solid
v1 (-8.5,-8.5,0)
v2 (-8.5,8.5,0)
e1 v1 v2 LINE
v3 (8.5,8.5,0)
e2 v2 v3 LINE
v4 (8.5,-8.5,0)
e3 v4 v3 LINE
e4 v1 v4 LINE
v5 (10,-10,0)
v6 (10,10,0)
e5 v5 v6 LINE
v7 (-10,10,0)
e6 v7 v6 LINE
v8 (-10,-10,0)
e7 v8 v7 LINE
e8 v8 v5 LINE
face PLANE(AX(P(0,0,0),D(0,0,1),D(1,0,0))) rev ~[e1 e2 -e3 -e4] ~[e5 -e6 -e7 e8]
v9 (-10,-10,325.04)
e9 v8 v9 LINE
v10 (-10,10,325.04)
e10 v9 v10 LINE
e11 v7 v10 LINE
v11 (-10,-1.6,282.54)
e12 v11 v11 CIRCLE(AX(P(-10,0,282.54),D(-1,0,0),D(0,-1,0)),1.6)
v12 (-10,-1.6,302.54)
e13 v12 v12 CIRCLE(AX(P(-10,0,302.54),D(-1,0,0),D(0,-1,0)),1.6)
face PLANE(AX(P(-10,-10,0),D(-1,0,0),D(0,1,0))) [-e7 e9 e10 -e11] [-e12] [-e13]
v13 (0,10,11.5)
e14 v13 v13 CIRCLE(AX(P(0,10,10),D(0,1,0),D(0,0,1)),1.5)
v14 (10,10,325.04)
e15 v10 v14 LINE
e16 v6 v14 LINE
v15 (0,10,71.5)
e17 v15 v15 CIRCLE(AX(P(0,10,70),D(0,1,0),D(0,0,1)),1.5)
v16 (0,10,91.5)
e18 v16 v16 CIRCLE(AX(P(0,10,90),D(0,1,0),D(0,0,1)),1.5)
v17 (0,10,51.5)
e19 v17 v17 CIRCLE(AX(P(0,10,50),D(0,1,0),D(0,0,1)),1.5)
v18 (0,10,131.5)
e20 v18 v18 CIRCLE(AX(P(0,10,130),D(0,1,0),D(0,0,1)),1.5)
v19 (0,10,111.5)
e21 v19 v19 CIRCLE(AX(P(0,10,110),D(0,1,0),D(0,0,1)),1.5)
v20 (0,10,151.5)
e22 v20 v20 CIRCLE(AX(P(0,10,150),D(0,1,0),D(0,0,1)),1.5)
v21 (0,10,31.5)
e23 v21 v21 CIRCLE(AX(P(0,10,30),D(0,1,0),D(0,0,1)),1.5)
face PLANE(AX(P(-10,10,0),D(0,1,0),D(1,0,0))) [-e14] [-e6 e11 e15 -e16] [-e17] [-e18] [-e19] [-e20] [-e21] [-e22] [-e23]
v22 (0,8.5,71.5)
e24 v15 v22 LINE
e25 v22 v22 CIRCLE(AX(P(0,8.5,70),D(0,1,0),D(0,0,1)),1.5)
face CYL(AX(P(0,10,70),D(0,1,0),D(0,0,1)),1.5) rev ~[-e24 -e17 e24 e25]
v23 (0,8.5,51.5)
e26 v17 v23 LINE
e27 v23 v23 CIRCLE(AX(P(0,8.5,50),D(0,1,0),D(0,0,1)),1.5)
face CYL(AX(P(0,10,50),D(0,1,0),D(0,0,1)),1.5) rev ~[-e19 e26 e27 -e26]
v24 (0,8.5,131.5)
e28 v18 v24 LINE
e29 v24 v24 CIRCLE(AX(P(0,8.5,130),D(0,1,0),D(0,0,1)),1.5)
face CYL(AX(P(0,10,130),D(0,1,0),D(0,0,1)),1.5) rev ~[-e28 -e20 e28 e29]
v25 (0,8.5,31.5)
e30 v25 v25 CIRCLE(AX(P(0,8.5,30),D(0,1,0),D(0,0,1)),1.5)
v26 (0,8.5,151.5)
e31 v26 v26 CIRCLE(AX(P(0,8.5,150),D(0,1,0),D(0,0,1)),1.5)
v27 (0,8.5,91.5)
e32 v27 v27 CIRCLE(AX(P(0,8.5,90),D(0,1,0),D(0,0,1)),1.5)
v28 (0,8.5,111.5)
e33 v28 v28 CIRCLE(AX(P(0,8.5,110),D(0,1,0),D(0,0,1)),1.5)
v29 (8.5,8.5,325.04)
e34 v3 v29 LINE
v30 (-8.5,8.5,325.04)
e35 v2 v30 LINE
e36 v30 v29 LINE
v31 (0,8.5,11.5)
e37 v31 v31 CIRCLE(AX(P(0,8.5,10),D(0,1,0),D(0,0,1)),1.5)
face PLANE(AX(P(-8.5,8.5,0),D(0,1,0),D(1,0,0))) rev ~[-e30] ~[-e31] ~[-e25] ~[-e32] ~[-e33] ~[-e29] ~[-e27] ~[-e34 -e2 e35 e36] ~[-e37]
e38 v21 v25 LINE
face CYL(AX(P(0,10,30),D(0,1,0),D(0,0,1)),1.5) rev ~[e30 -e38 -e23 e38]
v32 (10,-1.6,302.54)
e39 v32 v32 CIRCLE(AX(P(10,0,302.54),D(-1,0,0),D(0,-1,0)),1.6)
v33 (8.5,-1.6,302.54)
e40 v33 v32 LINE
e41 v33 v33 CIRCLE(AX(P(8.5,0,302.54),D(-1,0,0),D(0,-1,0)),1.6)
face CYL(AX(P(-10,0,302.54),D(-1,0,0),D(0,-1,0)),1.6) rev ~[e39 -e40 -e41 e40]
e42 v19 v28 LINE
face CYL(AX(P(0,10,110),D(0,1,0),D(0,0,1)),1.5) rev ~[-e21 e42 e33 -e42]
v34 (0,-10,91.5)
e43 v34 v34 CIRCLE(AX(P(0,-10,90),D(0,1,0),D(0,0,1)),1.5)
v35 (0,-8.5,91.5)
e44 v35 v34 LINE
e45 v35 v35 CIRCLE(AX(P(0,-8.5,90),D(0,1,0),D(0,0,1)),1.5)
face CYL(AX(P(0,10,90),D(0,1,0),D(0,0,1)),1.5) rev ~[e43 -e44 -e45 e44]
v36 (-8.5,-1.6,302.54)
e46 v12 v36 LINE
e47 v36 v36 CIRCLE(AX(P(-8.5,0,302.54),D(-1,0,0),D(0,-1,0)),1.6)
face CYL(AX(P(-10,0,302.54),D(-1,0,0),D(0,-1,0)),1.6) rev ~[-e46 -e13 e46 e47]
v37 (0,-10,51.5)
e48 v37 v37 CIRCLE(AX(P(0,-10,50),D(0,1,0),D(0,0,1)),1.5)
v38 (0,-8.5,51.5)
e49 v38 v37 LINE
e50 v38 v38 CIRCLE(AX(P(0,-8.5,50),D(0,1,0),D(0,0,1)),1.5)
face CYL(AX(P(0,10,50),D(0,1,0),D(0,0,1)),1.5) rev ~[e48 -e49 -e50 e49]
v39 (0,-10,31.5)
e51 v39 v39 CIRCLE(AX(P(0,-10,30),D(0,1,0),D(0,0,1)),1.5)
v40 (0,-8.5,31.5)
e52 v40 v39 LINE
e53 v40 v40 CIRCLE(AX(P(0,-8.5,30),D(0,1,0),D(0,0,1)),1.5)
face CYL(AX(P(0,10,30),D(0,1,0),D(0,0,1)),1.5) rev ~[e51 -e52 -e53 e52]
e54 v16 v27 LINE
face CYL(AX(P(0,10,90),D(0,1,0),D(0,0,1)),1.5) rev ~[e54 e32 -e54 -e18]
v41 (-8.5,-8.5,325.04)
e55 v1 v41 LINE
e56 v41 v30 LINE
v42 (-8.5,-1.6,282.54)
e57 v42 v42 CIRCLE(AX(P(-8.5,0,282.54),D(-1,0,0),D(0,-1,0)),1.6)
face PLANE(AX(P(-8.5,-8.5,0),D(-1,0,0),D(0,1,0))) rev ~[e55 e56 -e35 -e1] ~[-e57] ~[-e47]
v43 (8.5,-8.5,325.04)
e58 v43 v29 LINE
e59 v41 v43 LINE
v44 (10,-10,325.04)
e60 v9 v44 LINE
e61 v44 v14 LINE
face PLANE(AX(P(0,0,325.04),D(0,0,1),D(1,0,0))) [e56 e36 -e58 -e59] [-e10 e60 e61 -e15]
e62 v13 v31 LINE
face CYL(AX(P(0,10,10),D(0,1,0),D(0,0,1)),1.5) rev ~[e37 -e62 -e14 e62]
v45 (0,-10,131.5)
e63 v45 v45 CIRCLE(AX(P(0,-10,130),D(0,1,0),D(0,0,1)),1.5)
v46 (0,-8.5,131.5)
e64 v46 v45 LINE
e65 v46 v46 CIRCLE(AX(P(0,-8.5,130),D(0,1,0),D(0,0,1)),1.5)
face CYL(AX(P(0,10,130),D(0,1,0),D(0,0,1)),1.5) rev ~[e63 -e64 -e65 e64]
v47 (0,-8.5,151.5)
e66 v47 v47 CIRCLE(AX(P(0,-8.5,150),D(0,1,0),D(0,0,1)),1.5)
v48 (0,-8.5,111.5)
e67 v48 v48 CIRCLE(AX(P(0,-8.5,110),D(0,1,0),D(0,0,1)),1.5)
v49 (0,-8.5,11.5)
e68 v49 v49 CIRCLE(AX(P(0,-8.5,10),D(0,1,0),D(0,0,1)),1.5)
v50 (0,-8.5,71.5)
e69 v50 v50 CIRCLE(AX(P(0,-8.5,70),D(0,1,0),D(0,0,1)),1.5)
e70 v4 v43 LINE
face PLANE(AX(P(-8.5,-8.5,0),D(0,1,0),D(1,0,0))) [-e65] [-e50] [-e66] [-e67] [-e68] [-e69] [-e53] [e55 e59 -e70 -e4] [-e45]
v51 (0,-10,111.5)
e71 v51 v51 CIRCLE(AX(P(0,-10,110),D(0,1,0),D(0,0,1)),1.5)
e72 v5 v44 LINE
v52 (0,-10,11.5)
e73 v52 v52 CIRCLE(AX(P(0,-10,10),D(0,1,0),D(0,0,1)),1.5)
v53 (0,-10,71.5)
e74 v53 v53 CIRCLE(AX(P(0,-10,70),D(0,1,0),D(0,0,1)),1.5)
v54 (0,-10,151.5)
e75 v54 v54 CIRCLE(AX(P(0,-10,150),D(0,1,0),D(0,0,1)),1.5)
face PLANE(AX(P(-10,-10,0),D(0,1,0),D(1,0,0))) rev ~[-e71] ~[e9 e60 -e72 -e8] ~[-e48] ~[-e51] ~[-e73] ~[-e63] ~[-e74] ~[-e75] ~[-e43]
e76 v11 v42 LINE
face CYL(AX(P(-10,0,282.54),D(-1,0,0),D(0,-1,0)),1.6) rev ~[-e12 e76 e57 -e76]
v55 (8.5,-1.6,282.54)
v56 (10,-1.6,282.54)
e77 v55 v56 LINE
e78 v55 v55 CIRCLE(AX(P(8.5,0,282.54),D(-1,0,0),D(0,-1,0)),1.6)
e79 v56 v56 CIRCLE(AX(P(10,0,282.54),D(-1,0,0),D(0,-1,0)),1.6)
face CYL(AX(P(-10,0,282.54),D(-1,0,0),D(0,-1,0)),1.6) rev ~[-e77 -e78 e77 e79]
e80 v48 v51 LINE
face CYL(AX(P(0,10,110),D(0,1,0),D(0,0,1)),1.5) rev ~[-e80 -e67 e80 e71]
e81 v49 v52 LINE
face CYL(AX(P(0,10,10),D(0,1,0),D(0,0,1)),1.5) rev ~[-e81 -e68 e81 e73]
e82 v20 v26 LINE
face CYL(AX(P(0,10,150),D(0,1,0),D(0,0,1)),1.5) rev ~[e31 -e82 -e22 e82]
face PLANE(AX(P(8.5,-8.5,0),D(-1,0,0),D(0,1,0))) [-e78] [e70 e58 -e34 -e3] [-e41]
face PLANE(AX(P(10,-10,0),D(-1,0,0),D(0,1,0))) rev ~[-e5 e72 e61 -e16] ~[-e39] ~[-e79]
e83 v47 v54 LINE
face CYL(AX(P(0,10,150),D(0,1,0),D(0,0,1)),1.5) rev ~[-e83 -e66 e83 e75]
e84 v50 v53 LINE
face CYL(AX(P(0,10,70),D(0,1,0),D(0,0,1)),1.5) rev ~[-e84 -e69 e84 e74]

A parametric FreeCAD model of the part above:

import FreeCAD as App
import Part
import Sketcher
Q = App.Units.Quantity


def add_polygon(sketch, points):
    """Adds a closed chain of lines whose ends are joined by coincident constraints."""
    first, n = sketch.GeometryCount, len(points)
    for a, b in zip(points, points[1:] + points[:1]):
        sketch.addGeometry(Part.LineSegment(App.Vector(*a, 0), App.Vector(*b, 0)), False)
    for i in range(n):
        sketch.addConstraint(Sketcher.Constraint("Coincident", first + i, 2, first + (i + 1) % n, 1))

doc = App.newDocument("Part")
body = doc.addObject("PartDesign::Body", "Body")

# Sketch on XY plane
sketch1 = body.newObject("Sketcher::SketchObject", "Sketch")
sketch1.AttachmentSupport = (doc.getObject("XY_Plane"), [""])
sketch1.MapMode = "FlatFace"
add_polygon(sketch1, [(-10, 10), (-10, -10), (10, -10), (10, 10)])  # lines 0-3
add_polygon(sketch1, [(8, -8), (-8, -8), (-8, 8), (8, 8)])  # lines 4-7
sketch1.addConstraint([
    Sketcher.Constraint("Vertical", 0),
    Sketcher.Constraint("Horizontal", 1),
    Sketcher.Constraint("Vertical", 2),
    Sketcher.Constraint("Horizontal", 3),
    Sketcher.Constraint("Horizontal", 4),
    Sketcher.Constraint("Vertical", 5),
    Sketcher.Constraint("Horizontal", 6),
    Sketcher.Constraint("Vertical", 7),
    Sketcher.Constraint("Symmetric", 0, 2, 2, 2, -1, 1),
    Sketcher.Constraint("Symmetric", 4, 2, 6, 2, -1, 1),
    Sketcher.Constraint("Equal", 3, 0),
    Sketcher.Constraint("Equal", 6, 5),
    Sketcher.Constraint("DistanceX", 1, 1, 1, 2, Q("20 mm")),
    Sketcher.Constraint("DistanceX", 4, 2, 4, 1, Q("17 mm")),
])
pad1 = body.newObject("PartDesign::Pad", "Pad")
pad1.Profile = sketch1
pad1.Length = 325.04

# Sketch on YZ plane
sketch2 = body.newObject("Sketcher::SketchObject", "Sketch001")
sketch2.AttachmentSupport = (doc.getObject("YZ_Plane"), [""])
sketch2.MapMode = "FlatFace"
sketch2.AttachmentOffset = App.Placement(App.Vector(0, 0, -10), App.Rotation())
sketch2.addGeometry([
    Part.Circle(App.Vector(0, 282.5, 0), App.Vector(0, 0, 1), 1.6),
    Part.Circle(App.Vector(0, 302.5, 0), App.Vector(0, 0, 1), 1.6),
], False)
sketch2.addConstraint([
    Sketcher.Constraint("Equal", 0, 1),
    Sketcher.Constraint("PointOnObject", 0, 3, -2),
    Sketcher.Constraint("PointOnObject", 1, 3, -2),
    Sketcher.Constraint("Diameter", 0, Q("3.2 mm")),
    Sketcher.Constraint("DistanceY", 0, 3, 1, 3, Q("20 mm")),
    Sketcher.Constraint("DistanceY", -1, 1, 0, 3, Q("282.54 mm")),
])
pocket1 = body.newObject("PartDesign::Pocket", "Pocket")
pocket1.Profile = sketch2
pocket1.Type = "ThroughAll"
pocket1.Reversed = True

# Sketch on XZ plane
sketch3 = body.newObject("Sketcher::SketchObject", "Sketch002")
sketch3.AttachmentSupport = (doc.getObject("XZ_Plane"), [""])
sketch3.MapMode = "FlatFace"
sketch3.AttachmentOffset = App.Placement(App.Vector(0, 0, -10), App.Rotation())
sketch3.addGeometry([
    Part.Circle(App.Vector(0, 10, 0), App.Vector(0, 0, 1), 1.5),  # 0
    Part.Circle(App.Vector(0, 30, 0), App.Vector(0, 0, 1), 1.5),  # 1
    Part.Circle(App.Vector(0, 50, 0), App.Vector(0, 0, 1), 1.5),  # 2
    Part.Circle(App.Vector(0, 70, 0), App.Vector(0, 0, 1), 1.5),  # 3
    Part.Circle(App.Vector(0, 90, 0), App.Vector(0, 0, 1), 1.5),  # 4
    Part.Circle(App.Vector(0, 110, 0), App.Vector(0, 0, 1), 1.5),  # 5
    Part.Circle(App.Vector(0, 130, 0), App.Vector(0, 0, 1), 1.5),  # 6
    Part.Circle(App.Vector(0, 150, 0), App.Vector(0, 0, 1), 1.5),  # 7
], False)
sketch3.addConstraint([
    Sketcher.Constraint("Equal", 0, 1),
    Sketcher.Constraint("Equal", 1, 2),
    Sketcher.Constraint("Equal", 2, 3),
    Sketcher.Constraint("Equal", 3, 4),
    Sketcher.Constraint("Equal", 4, 5),
    Sketcher.Constraint("Equal", 5, 6),
    Sketcher.Constraint("Equal", 6, 7),
    Sketcher.Constraint("PointOnObject", 0, 3, -2),
    Sketcher.Constraint("PointOnObject", 1, 3, -2),
    Sketcher.Constraint("PointOnObject", 2, 3, -2),
    Sketcher.Constraint("PointOnObject", 3, 3, -2),
    Sketcher.Constraint("PointOnObject", 4, 3, -2),
    Sketcher.Constraint("PointOnObject", 5, 3, -2),
    Sketcher.Constraint("PointOnObject", 6, 3, -2),
    Sketcher.Constraint("PointOnObject", 7, 3, -2),
    Sketcher.Constraint("Diameter", 0, Q("3 mm")),
    Sketcher.Constraint("DistanceY", -1, 1, 0, 3, Q("10 mm")),
    Sketcher.Constraint("DistanceY", -1, 1, 1, 3, Q("30 mm")),
    Sketcher.Constraint("DistanceY", -1, 1, 2, 3, Q("50 mm")),
    Sketcher.Constraint("DistanceY", -1, 1, 3, 3, Q("70 mm")),
    Sketcher.Constraint("DistanceY", -1, 1, 4, 3, Q("90 mm")),
    Sketcher.Constraint("DistanceY", -1, 1, 5, 3, Q("110 mm")),
    Sketcher.Constraint("DistanceY", -1, 1, 6, 3, Q("130 mm")),
    Sketcher.Constraint("DistanceY", -1, 1, 7, 3, Q("150 mm")),
])
pocket2 = body.newObject("PartDesign::Pocket", "Pocket001")
pocket2.Profile = sketch3
pocket2.Type = "ThroughAll"
pocket2.Reversed = True

doc.recompute()
